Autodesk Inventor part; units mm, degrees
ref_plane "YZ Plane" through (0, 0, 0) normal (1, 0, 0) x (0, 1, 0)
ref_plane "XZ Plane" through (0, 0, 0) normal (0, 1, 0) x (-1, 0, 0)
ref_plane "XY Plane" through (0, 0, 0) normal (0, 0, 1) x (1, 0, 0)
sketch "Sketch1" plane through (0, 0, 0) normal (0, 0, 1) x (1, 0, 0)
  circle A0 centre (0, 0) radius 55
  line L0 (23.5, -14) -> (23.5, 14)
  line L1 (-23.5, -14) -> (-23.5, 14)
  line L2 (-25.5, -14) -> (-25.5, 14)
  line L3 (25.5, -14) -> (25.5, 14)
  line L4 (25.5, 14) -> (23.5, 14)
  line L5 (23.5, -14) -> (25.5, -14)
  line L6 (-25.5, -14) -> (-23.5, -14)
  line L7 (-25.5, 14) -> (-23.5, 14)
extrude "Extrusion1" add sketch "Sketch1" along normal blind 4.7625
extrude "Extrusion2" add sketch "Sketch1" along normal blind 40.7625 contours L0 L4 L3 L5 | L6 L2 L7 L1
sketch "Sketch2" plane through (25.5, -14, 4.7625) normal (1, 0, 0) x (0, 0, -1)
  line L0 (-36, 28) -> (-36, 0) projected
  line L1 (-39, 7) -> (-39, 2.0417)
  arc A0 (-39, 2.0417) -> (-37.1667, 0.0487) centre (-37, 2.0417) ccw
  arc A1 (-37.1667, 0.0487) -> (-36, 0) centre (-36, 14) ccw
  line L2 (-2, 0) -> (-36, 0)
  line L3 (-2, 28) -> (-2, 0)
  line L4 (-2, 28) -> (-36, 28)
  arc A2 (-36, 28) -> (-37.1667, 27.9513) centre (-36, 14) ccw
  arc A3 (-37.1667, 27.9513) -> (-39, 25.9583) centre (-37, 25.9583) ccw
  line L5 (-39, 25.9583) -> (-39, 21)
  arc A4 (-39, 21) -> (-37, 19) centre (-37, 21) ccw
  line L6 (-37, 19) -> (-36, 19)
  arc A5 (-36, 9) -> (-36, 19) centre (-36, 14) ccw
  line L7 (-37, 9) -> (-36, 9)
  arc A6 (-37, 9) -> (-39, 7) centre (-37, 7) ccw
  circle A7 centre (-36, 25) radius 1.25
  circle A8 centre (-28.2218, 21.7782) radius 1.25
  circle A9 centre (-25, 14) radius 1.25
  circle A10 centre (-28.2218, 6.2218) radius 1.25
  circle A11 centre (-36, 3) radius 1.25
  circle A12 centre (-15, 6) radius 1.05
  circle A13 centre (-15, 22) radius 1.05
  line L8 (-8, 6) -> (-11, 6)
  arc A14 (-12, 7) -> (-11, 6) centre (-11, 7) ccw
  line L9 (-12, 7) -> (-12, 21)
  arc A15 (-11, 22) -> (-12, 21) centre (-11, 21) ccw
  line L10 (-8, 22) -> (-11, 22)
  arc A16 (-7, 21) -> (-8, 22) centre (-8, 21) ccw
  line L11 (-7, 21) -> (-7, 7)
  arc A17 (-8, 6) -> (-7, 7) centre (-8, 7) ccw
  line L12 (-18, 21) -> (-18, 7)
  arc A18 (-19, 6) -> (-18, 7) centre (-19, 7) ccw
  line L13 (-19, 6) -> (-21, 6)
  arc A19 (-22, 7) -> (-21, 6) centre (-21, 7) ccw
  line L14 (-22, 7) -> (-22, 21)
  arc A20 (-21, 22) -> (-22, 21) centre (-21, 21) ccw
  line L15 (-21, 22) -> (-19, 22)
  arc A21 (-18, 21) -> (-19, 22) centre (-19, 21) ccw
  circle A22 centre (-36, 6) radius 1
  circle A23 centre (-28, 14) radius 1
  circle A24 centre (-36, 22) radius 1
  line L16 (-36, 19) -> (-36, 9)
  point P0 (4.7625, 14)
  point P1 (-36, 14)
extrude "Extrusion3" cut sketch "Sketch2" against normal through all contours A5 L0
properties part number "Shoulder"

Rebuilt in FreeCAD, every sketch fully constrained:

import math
import FreeCAD as App
import Part
import Sketcher
from FreeCAD import Vector
Q = App.Units.Quantity

doc = App.newDocument("Part")
params = doc.addObject("Spreadsheet::Sheet", "Params")
for row, (alias, value) in enumerate([
    ("sketch1_diameter", "110 mm"),
    ("sketch1_width", "2 mm"),
    ("sketch1_height", "28 mm"),
    ("pad1_length", "4.7625 mm"),
    ("sketch2_width", "2 mm"),
    ("sketch2_height", "28 mm"),
    ("pad2_length", "40.7625 mm"),
    ("sketch3_radius", "5 mm"),
], start=1):
    params.set(f"A{row}", alias)
    params.set(f"B{row}", "=" + value)
    params.setAlias(f"B{row}", alias)

body = doc.addObject("PartDesign::Body", "Body")

# Sketch on XY plane
sketch1 = body.newObject("Sketcher::SketchObject", "Sketch")
sketch1.AttachmentSupport = (doc.getObject("XY_Plane"), [""])
sketch1.MapMode = "FlatFace"
sketch1.addGeometry([
    Part.Circle(Vector(0, 0, 0), Vector(0, 0, 1), 55),  # 0
    Part.LineSegment(Vector(-23.5, 14, 0), Vector(-23.5, -14, 0)),  # 1
    Part.LineSegment(Vector(-23.5, -14, 0), Vector(-25.5, -14, 0)),  # 2
    Part.LineSegment(Vector(-25.5, -14, 0), Vector(-25.5, 14, 0)),  # 3
    Part.LineSegment(Vector(-25.5, 14, 0), Vector(-23.5, 14, 0)),  # 4
    Part.LineSegment(Vector(25.5, -14, 0), Vector(23.5, -14, 0)),  # 5
    Part.LineSegment(Vector(23.5, -14, 0), Vector(23.5, 14, 0)),  # 6
    Part.LineSegment(Vector(23.5, 14, 0), Vector(25.5, 14, 0)),  # 7
    Part.LineSegment(Vector(25.5, 14, 0), Vector(25.5, -14, 0)),  # 8
], False)
sketch1.addConstraint([
    Sketcher.Constraint("Coincident", 1, 2, 2, 1),
    Sketcher.Constraint("Coincident", 2, 2, 3, 1),
    Sketcher.Constraint("Coincident", 3, 2, 4, 1),
    Sketcher.Constraint("Coincident", 4, 2, 1, 1),
    Sketcher.Constraint("Coincident", 5, 2, 6, 1),
    Sketcher.Constraint("Coincident", 6, 2, 7, 1),
    Sketcher.Constraint("Coincident", 7, 2, 8, 1),
    Sketcher.Constraint("Coincident", 8, 2, 5, 1),
    Sketcher.Constraint("Vertical", 1),
    Sketcher.Constraint("Horizontal", 2),
    Sketcher.Constraint("Vertical", 3),
    Sketcher.Constraint("Horizontal", 4),
    Sketcher.Constraint("Horizontal", 5),
    Sketcher.Constraint("Vertical", 6),
    Sketcher.Constraint("Horizontal", 7),
    Sketcher.Constraint("Vertical", 8),
    Sketcher.Constraint("Coincident", 0, 3, -1, 1),
    Sketcher.Constraint("Symmetric", 4, 2, 5, 2, -1, 1),
    Sketcher.Constraint("Symmetric", 2, 2, 7, 2, -1, 1),
    Sketcher.Constraint("Horizontal", 2, 2, 5, 2),
    Sketcher.Constraint("Diameter", 0, Q("110 mm")),
    Sketcher.Constraint("DistanceX", 2, 2, 2, 1, Q("2 mm")),
    Sketcher.Constraint("DistanceY", 1, 2, 1, 1, Q("28 mm")),
    Sketcher.Constraint("DistanceX", 1, 2, 5, 2, Q("47 mm")),
])
sketch1.setExpression("Constraints[20]", "Params.sketch1_diameter")
sketch1.setExpression("Constraints[21]", "Params.sketch1_width")
sketch1.setExpression("Constraints[22]", "Params.sketch1_height")
pad1 = body.newObject("PartDesign::Pad", "Pad")
pad1.Profile = sketch1
pad1.setExpression("Length", "Params.pad1_length")

# Sketch on XY plane
sketch2 = body.newObject("Sketcher::SketchObject", "Sketch001")
sketch2.AttachmentSupport = (doc.getObject("XY_Plane"), [""])
sketch2.MapMode = "FlatFace"
sketch2.addGeometry([
    Part.LineSegment(Vector(23.5, 14, 0), Vector(23.5, -14, 0)),  # 0
    Part.LineSegment(Vector(23.5, -14, 0), Vector(25.5, -14, 0)),  # 1
    Part.LineSegment(Vector(25.5, -14, 0), Vector(25.5, 14, 0)),  # 2
    Part.LineSegment(Vector(25.5, 14, 0), Vector(23.5, 14, 0)),  # 3
    Part.LineSegment(Vector(-25.5, -14, 0), Vector(-23.5, -14, 0)),  # 4
    Part.LineSegment(Vector(-23.5, -14, 0), Vector(-23.5, 14, 0)),  # 5
    Part.LineSegment(Vector(-23.5, 14, 0), Vector(-25.5, 14, 0)),  # 6
    Part.LineSegment(Vector(-25.5, 14, 0), Vector(-25.5, -14, 0)),  # 7
], False)
sketch2.addConstraint([
    Sketcher.Constraint("Coincident", 0, 2, 1, 1),
    Sketcher.Constraint("Coincident", 1, 2, 2, 1),
    Sketcher.Constraint("Coincident", 2, 2, 3, 1),
    Sketcher.Constraint("Coincident", 3, 2, 0, 1),
    Sketcher.Constraint("Coincident", 4, 2, 5, 1),
    Sketcher.Constraint("Coincident", 5, 2, 6, 1),
    Sketcher.Constraint("Coincident", 6, 2, 7, 1),
    Sketcher.Constraint("Coincident", 7, 2, 4, 1),
    Sketcher.Constraint("Vertical", 0),
    Sketcher.Constraint("Horizontal", 1),
    Sketcher.Constraint("Vertical", 2),
    Sketcher.Constraint("Horizontal", 3),
    Sketcher.Constraint("Horizontal", 4),
    Sketcher.Constraint("Vertical", 5),
    Sketcher.Constraint("Horizontal", 6),
    Sketcher.Constraint("Vertical", 7),
    Sketcher.Constraint("Symmetric", 3, 2, 4, 2, -1, 1),
    Sketcher.Constraint("Symmetric", 1, 2, 6, 2, -1, 1),
    Sketcher.Constraint("Horizontal", 1, 2, 4, 2),
    Sketcher.Constraint("DistanceX", 1, 1, 1, 2, Q("2 mm")),
    Sketcher.Constraint("DistanceY", 0, 2, 0, 1, Q("28 mm")),
    Sketcher.Constraint("DistanceX", 4, 2, 0, 2, Q("47 mm")),
])
sketch2.setExpression("Constraints[19]", "Params.sketch2_width")
sketch2.setExpression("Constraints[20]", "Params.sketch2_height")
pad2 = body.newObject("PartDesign::Pad", "Pad001")
pad2.Profile = sketch2
pad2.setExpression("Length", "Params.pad2_length")

# Sketch on YZ plane
sketch3 = body.newObject("Sketcher::SketchObject", "Sketch002")
sketch3.AttachmentSupport = (doc.getObject("YZ_Plane"), [""])
sketch3.MapMode = "FlatFace"
sketch3.AttachmentOffset = App.Placement(Vector(0, 0, 25.5), App.Rotation())
sketch3.addGeometry([
    Part.ArcOfCircle(Part.Circle(Vector(0, 41, 0), Vector(0, 0, 1), 5), math.radians(180), math.radians(360)),
    Part.LineSegment(Vector(5, 41, 0), Vector(-5, 41, 0)),
], False)
sketch3.addConstraint([
    Sketcher.Constraint("Coincident", 0, 1, 1, 2),
    Sketcher.Constraint("Coincident", 1, 1, 0, 2),
    Sketcher.Constraint("Horizontal", 1),
    Sketcher.Constraint("PointOnObject", 0, 3, -2),
    Sketcher.Constraint("Radius", 0, Q("5 mm")),
    Sketcher.Constraint("DistanceY", -1, 1, 0, 3, Q("40.7625 mm")),
    Sketcher.Constraint("DistanceY", -1, 1, 0, 1, Q("40.7625 mm")),
])
sketch3.setExpression("Constraints[4]", "Params.sketch3_radius")
pocket1 = body.newObject("PartDesign::Pocket", "Pocket")
pocket1.Profile = sketch3
pocket1.Type = "ThroughAll"

doc.recompute()
